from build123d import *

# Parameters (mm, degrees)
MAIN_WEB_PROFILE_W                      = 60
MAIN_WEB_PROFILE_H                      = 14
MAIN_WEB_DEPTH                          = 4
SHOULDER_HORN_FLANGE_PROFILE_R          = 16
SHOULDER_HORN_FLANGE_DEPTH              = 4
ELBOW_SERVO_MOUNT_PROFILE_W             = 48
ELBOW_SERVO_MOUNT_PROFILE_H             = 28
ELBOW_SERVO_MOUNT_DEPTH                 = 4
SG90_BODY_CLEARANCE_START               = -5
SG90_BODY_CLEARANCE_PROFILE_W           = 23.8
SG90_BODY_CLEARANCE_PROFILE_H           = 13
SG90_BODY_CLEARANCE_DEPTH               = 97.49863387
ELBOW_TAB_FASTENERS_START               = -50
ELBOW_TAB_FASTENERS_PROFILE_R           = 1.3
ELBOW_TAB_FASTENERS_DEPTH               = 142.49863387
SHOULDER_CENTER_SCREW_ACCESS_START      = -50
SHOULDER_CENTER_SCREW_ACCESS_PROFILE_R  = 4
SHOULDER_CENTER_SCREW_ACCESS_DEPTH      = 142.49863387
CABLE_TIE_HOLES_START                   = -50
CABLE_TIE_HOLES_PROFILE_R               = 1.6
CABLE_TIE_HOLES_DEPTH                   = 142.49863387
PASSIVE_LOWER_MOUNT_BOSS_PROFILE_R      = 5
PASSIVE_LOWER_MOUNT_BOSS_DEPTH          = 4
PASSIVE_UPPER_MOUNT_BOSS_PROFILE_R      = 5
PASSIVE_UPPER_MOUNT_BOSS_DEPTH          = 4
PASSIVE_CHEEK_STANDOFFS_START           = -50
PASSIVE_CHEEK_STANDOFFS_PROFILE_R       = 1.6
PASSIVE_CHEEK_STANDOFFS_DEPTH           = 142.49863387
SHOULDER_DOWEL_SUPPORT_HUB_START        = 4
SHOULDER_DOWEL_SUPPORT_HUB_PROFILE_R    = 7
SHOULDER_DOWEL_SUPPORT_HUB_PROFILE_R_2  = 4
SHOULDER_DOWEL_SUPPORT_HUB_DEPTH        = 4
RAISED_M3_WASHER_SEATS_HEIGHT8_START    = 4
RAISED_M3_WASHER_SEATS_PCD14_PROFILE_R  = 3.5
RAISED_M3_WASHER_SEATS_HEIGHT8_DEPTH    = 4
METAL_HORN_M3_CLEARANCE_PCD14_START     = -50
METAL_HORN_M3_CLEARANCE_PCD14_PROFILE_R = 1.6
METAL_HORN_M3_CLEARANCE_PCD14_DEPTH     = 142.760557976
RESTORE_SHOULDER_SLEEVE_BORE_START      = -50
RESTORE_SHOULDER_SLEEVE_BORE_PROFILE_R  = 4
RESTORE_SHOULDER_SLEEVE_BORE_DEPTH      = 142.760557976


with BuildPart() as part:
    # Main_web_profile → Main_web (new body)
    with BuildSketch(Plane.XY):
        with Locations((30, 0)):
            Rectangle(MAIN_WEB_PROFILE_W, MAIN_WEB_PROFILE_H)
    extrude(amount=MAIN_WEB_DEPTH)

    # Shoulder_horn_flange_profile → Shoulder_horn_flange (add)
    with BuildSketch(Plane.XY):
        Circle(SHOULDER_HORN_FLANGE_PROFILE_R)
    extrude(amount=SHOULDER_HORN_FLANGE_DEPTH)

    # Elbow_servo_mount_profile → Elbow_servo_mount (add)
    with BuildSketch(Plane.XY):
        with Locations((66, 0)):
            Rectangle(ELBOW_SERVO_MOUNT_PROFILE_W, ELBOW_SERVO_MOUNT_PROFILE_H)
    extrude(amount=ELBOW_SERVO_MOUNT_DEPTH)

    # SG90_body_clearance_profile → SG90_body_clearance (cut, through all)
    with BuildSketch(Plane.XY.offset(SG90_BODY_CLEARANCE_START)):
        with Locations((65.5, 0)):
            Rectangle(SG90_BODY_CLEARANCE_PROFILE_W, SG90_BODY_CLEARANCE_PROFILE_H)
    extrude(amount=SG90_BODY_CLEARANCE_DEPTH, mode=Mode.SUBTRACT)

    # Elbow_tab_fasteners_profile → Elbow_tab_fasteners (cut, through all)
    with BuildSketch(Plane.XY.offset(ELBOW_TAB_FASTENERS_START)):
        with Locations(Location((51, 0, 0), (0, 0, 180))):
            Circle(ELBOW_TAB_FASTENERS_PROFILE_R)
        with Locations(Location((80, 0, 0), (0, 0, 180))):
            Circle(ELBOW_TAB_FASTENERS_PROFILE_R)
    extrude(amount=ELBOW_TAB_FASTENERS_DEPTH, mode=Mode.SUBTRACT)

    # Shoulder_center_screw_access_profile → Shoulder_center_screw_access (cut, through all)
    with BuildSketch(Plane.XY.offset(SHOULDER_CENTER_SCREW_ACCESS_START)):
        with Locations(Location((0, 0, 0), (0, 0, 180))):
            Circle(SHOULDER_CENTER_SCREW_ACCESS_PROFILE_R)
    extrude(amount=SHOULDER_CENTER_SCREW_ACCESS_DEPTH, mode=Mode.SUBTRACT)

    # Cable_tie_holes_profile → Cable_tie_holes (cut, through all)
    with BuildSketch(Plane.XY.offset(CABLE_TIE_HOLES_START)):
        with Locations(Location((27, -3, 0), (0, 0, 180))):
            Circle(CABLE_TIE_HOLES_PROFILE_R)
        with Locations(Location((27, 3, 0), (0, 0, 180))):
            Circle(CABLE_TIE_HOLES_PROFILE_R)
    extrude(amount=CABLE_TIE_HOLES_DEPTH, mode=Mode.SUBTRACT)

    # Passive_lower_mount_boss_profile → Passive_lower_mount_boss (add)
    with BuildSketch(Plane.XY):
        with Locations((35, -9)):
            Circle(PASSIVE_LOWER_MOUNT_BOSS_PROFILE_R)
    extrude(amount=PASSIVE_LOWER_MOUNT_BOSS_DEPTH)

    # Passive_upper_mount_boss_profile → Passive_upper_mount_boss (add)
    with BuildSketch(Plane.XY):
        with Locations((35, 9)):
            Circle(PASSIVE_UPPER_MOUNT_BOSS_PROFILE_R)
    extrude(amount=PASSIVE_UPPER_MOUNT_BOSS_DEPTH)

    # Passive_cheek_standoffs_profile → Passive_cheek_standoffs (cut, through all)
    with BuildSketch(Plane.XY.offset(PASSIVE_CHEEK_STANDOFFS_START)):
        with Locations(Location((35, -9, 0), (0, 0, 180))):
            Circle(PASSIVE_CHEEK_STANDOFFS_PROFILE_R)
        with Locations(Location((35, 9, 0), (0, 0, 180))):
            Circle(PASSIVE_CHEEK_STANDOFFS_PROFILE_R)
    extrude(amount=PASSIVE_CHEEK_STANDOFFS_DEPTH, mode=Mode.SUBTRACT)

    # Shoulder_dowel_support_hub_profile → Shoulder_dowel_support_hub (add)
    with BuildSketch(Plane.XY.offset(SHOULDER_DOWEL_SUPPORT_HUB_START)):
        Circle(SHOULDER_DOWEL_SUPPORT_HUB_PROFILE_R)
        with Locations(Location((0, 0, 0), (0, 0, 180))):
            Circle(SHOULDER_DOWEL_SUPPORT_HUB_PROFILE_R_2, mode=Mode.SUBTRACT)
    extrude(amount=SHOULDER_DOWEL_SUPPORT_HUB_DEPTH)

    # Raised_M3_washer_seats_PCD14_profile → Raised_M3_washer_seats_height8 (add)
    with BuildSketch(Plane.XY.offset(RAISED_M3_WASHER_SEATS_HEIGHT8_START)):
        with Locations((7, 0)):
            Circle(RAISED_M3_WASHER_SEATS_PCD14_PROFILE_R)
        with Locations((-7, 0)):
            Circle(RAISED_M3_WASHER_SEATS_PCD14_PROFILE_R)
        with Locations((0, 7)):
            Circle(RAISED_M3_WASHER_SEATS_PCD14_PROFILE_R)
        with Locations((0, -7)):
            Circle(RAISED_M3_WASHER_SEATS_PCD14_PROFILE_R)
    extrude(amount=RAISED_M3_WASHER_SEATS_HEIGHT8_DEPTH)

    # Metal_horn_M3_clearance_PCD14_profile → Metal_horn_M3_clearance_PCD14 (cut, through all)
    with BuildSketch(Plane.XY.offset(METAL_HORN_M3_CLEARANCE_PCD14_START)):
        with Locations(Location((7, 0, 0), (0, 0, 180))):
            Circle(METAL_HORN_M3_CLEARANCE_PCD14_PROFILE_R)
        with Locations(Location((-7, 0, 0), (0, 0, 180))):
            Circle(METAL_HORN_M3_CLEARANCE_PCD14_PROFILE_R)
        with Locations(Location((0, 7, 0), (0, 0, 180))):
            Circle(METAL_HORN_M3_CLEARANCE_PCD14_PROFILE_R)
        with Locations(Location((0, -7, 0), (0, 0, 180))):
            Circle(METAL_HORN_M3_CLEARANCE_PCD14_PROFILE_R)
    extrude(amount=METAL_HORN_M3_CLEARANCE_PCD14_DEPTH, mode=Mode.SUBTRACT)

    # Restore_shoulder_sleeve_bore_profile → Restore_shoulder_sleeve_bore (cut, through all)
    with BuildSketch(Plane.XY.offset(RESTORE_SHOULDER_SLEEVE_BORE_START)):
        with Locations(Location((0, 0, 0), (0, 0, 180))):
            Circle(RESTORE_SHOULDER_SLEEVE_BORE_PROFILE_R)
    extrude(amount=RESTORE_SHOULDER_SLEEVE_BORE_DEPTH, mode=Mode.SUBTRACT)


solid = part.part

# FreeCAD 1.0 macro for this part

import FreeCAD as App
import Part
import Sketcher

V = App.Vector

doc = App.newDocument("Part")
body = doc.addObject("PartDesign::Body", "Body")

# Sketch on XY plane
sketch1 = body.newObject("Sketcher::SketchObject", "Sketch")
sketch1.AttachmentSupport = (doc.getObject("XY_Plane"), [""])
sketch1.MapMode = "FlatFace"
sketch1.addGeometry([
    Part.LineSegment(V(0, 7, 0), V(0, -7, 0)),
    Part.LineSegment(V(0, -7, 0), V(60, -7, 0)),
    Part.LineSegment(V(60, -7, 0), V(60, 7, 0)),
    Part.LineSegment(V(60, 7, 0), V(0, 7, 0)),
], False)
sketch1.addConstraint([
    Sketcher.Constraint("Coincident", 0, 2, 1, 1),
    Sketcher.Constraint("Coincident", 1, 2, 2, 1),
    Sketcher.Constraint("Coincident", 2, 2, 3, 1),
    Sketcher.Constraint("Coincident", 3, 2, 0, 1),
    Sketcher.Constraint("Vertical", 0),
    Sketcher.Constraint("Horizontal", 1),
    Sketcher.Constraint("Vertical", 2),
    Sketcher.Constraint("Horizontal", 3),
    Sketcher.Constraint("Symmetric", 0, 2, 3, 2, -1, 1),
    Sketcher.Constraint("DistanceX", 1, 1, 1, 2, 60.0),
    Sketcher.Constraint("DistanceY", 0, 2, 0, 1, 14.0),
])
pad1 = body.newObject("PartDesign::Pad", "Pad")
pad1.Profile = sketch1
pad1.Length = 4

# Sketch on XY plane
sketch2 = body.newObject("Sketcher::SketchObject", "Sketch001")
sketch2.AttachmentSupport = (doc.getObject("XY_Plane"), [""])
sketch2.MapMode = "FlatFace"
sketch2.addGeometry(Part.Circle(V(0, 0, 0), V(0, 0, 1), 16), False)
sketch2.addConstraint([
    Sketcher.Constraint("Coincident", 0, 3, -1, 1),
    Sketcher.Constraint("Diameter", 0, 32.0),
])
pad2 = body.newObject("PartDesign::Pad", "Pad001")
pad2.Profile = sketch2
pad2.Length = 4

# Sketch on XY plane
sketch3 = body.newObject("Sketcher::SketchObject", "Sketch002")
sketch3.AttachmentSupport = (doc.getObject("XY_Plane"), [""])
sketch3.MapMode = "FlatFace"
sketch3.addGeometry([
    Part.LineSegment(V(42, 14, 0), V(42, -14, 0)),
    Part.LineSegment(V(42, -14, 0), V(90, -14, 0)),
    Part.LineSegment(V(90, -14, 0), V(90, 14, 0)),
    Part.LineSegment(V(90, 14, 0), V(42, 14, 0)),
], False)
sketch3.addConstraint([
    Sketcher.Constraint("Coincident", 0, 2, 1, 1),
    Sketcher.Constraint("Coincident", 1, 2, 2, 1),
    Sketcher.Constraint("Coincident", 2, 2, 3, 1),
    Sketcher.Constraint("Coincident", 3, 2, 0, 1),
    Sketcher.Constraint("Vertical", 0),
    Sketcher.Constraint("Horizontal", 1),
    Sketcher.Constraint("Vertical", 2),
    Sketcher.Constraint("Horizontal", 3),
    Sketcher.Constraint("DistanceX", 1, 1, 1, 2, 48.0),
    Sketcher.Constraint("DistanceY", 0, 2, 0, 1, 28.0),
    Sketcher.Constraint("DistanceX", -1, 1, 0, 2, 42.0),
    Sketcher.Constraint("DistanceY", 0, 2, -1, 1, 14.0),
])
pad3 = body.newObject("PartDesign::Pad", "Pad002")
pad3.Profile = sketch3
pad3.Length = 4

# Sketch on XY plane
sketch4 = body.newObject("Sketcher::SketchObject", "Sketch003")
sketch4.AttachmentSupport = (doc.getObject("XY_Plane"), [""])
sketch4.MapMode = "FlatFace"
sketch4.AttachmentOffset = App.Placement(V(0, 0, -5), App.Rotation())
sketch4.addGeometry([
    Part.LineSegment(V(54, 6, 0), V(54, -6, 0)),
    Part.LineSegment(V(54, -6, 0), V(77, -6, 0)),
    Part.LineSegment(V(77, -6, 0), V(77, 6, 0)),
    Part.LineSegment(V(77, 6, 0), V(54, 6, 0)),
], False)
sketch4.addConstraint([
    Sketcher.Constraint("Coincident", 0, 2, 1, 1),
    Sketcher.Constraint("Coincident", 1, 2, 2, 1),
    Sketcher.Constraint("Coincident", 2, 2, 3, 1),
    Sketcher.Constraint("Coincident", 3, 2, 0, 1),
    Sketcher.Constraint("Vertical", 0),
    Sketcher.Constraint("Horizontal", 1),
    Sketcher.Constraint("Vertical", 2),
    Sketcher.Constraint("Horizontal", 3),
    Sketcher.Constraint("DistanceY", 0, 2, 0, 1, 13.0),
    Sketcher.Constraint("DistanceX", 1, 1, 1, 2, 23.8),
    Sketcher.Constraint("DistanceX", -1, 1, 0, 2, 53.6),
    Sketcher.Constraint("DistanceY", 0, 2, -1, 1, 6.5),
])
pocket1 = body.newObject("PartDesign::Pocket", "Pocket")
pocket1.Profile = sketch4
pocket1.Type = "ThroughAll"
pocket1.Reversed = True

# Sketch on XY plane
sketch5 = body.newObject("Sketcher::SketchObject", "Sketch004")
sketch5.AttachmentSupport = (doc.getObject("XY_Plane"), [""])
sketch5.MapMode = "FlatFace"
sketch5.AttachmentOffset = App.Placement(V(0, 0, -50), App.Rotation())
sketch5.addGeometry([
    Part.Circle(V(51, 0, 0), V(0, 0, 1), 1.3),
    Part.Circle(V(80, 0, 0), V(0, 0, 1), 1.3),
], False)
sketch5.addConstraint([
    Sketcher.Constraint("Equal", 0, 1),
    Sketcher.Constraint("PointOnObject", 0, 3, -1),
    Sketcher.Constraint("PointOnObject", 1, 3, -1),
    Sketcher.Constraint("Diameter", 0, 2.6),
    Sketcher.Constraint("DistanceX", -1, 1, 0, 3, 51.0),
    Sketcher.Constraint("DistanceX", -1, 1, 1, 3, 80.0),
])
pocket2 = body.newObject("PartDesign::Pocket", "Pocket001")
pocket2.Profile = sketch5
pocket2.Type = "ThroughAll"
pocket2.Reversed = True

# Sketch on XY plane
sketch6 = body.newObject("Sketcher::SketchObject", "Sketch005")
sketch6.AttachmentSupport = (doc.getObject("XY_Plane"), [""])
sketch6.MapMode = "FlatFace"
sketch6.AttachmentOffset = App.Placement(V(0, 0, -50), App.Rotation())
sketch6.addGeometry(Part.Circle(V(0, 0, 0), V(0, 0, 1), 4), False)
sketch6.addConstraint([
    Sketcher.Constraint("Coincident", 0, 3, -1, 1),
    Sketcher.Constraint("Diameter", 0, 8.0),
])
pocket3 = body.newObject("PartDesign::Pocket", "Pocket002")
pocket3.Profile = sketch6
pocket3.Type = "ThroughAll"
pocket3.Reversed = True

# Sketch on XY plane
sketch7 = body.newObject("Sketcher::SketchObject", "Sketch006")
sketch7.AttachmentSupport = (doc.getObject("XY_Plane"), [""])
sketch7.MapMode = "FlatFace"
sketch7.AttachmentOffset = App.Placement(V(0, 0, -50), App.Rotation())
sketch7.addGeometry([
    Part.Circle(V(27, -3, 0), V(0, 0, 1), 1.6),
    Part.Circle(V(27, 3, 0), V(0, 0, 1), 1.6),
], False)
sketch7.addConstraint([
    Sketcher.Constraint("Equal", 0, 1),
    Sketcher.Constraint("Symmetric", 0, 3, 1, 3, -1),
    Sketcher.Constraint("Diameter", 0, 3.2),
    Sketcher.Constraint("DistanceX", -1, 1, 0, 3, 27.0),
    Sketcher.Constraint("DistanceY", 0, 3, -1, 1, 3.0),
])
pocket4 = body.newObject("PartDesign::Pocket", "Pocket003")
pocket4.Profile = sketch7
pocket4.Type = "ThroughAll"
pocket4.Reversed = True

# Sketch on XY plane
sketch8 = body.newObject("Sketcher::SketchObject", "Sketch007")
sketch8.AttachmentSupport = (doc.getObject("XY_Plane"), [""])
sketch8.MapMode = "FlatFace"
sketch8.addGeometry(Part.Circle(V(35, -9, 0), V(0, 0, 1), 5), False)
sketch8.addConstraint([
    Sketcher.Constraint("Diameter", 0, 10.0),
    Sketcher.Constraint("DistanceX", -1, 1, 0, 3, 35.0),
    Sketcher.Constraint("DistanceY", 0, 3, -1, 1, 9.0),
])
pad4 = body.newObject("PartDesign::Pad", "Pad003")
pad4.Profile = sketch8
pad4.Length = 4

# Sketch on XY plane
sketch9 = body.newObject("Sketcher::SketchObject", "Sketch008")
sketch9.AttachmentSupport = (doc.getObject("XY_Plane"), [""])
sketch9.MapMode = "FlatFace"
sketch9.addGeometry(Part.Circle(V(35, 9, 0), V(0, 0, 1), 5), False)
sketch9.addConstraint([
    Sketcher.Constraint("Diameter", 0, 10.0),
    Sketcher.Constraint("DistanceX", -1, 1, 0, 3, 35.0),
    Sketcher.Constraint("DistanceY", -1, 1, 0, 3, 9.0),
])
pad5 = body.newObject("PartDesign::Pad", "Pad004")
pad5.Profile = sketch9
pad5.Length = 4

# Sketch on XY plane
sketch10 = body.newObject("Sketcher::SketchObject", "Sketch009")
sketch10.AttachmentSupport = (doc.getObject("XY_Plane"), [""])
sketch10.MapMode = "FlatFace"
sketch10.AttachmentOffset = App.Placement(V(0, 0, -50), App.Rotation())
sketch10.addGeometry([
    Part.Circle(V(35, -9, 0), V(0, 0, 1), 1.6),
    Part.Circle(V(35, 9, 0), V(0, 0, 1), 1.6),
], False)
sketch10.addConstraint([
    Sketcher.Constraint("Equal", 0, 1),
    Sketcher.Constraint("Symmetric", 0, 3, 1, 3, -1),
    Sketcher.Constraint("Diameter", 0, 3.2),
    Sketcher.Constraint("DistanceX", -1, 1, 0, 3, 35.0),
    Sketcher.Constraint("DistanceY", 0, 3, -1, 1, 9.0),
])
pocket5 = body.newObject("PartDesign::Pocket", "Pocket004")
pocket5.Profile = sketch10
pocket5.Type = "ThroughAll"
pocket5.Reversed = True

# Sketch on XY plane
sketch11 = body.newObject("Sketcher::SketchObject", "Sketch010")
sketch11.AttachmentSupport = (doc.getObject("XY_Plane"), [""])
sketch11.MapMode = "FlatFace"
sketch11.AttachmentOffset = App.Placement(V(0, 0, 4), App.Rotation())
sketch11.addGeometry([
    Part.Circle(V(0, 0, 0), V(0, 0, 1), 7),
    Part.Circle(V(0, 0, 0), V(0, 0, 1), 4),
], False)
sketch11.addConstraint([
    Sketcher.Constraint("Coincident", 0, 3, -1, 1),
    Sketcher.Constraint("Coincident", 1, 3, -1, 1),
    Sketcher.Constraint("Diameter", 0, 14.0),
    Sketcher.Constraint("Diameter", 1, 8.0),
])
pad6 = body.newObject("PartDesign::Pad", "Pad005")
pad6.Profile = sketch11
pad6.Length = 4

# Sketch on XY plane
sketch12 = body.newObject("Sketcher::SketchObject", "Sketch011")
sketch12.AttachmentSupport = (doc.getObject("XY_Plane"), [""])
sketch12.MapMode = "FlatFace"
sketch12.AttachmentOffset = App.Placement(V(0, 0, 4), App.Rotation())
sketch12.addGeometry([
    Part.Circle(V(7, 0, 0), V(0, 0, 1), 3.5),
    Part.Circle(V(-7, 0, 0), V(0, 0, 1), 3.5),
    Part.Circle(V(0, 7, 0), V(0, 0, 1), 3.5),
    Part.Circle(V(0, -7, 0), V(0, 0, 1), 3.5),
], False)
sketch12.addConstraint([
    Sketcher.Constraint("Equal", 0, 1),
    Sketcher.Constraint("Equal", 1, 2),
    Sketcher.Constraint("Equal", 2, 3),
    Sketcher.Constraint("Symmetric", 0, 3, 1, 3, -1, 1),
    Sketcher.Constraint("Symmetric", 2, 3, 3, 3, -1, 1),
    Sketcher.Constraint("PointOnObject", 0, 3, -1),
    Sketcher.Constraint("PointOnObject", 2, 3, -2),
    Sketcher.Constraint("Diameter", 0, 7.0),
    Sketcher.Constraint("DistanceX", -1, 1, 0, 3, 7.0),
    Sketcher.Constraint("DistanceY", -1, 1, 2, 3, 7.0),
])
pad7 = body.newObject("PartDesign::Pad", "Pad006")
pad7.Profile = sketch12
pad7.Length = 4

# Sketch on XY plane
sketch13 = body.newObject("Sketcher::SketchObject", "Sketch012")
sketch13.AttachmentSupport = (doc.getObject("XY_Plane"), [""])
sketch13.MapMode = "FlatFace"
sketch13.AttachmentOffset = App.Placement(V(0, 0, -50), App.Rotation())
sketch13.addGeometry([
    Part.Circle(V(7, 0, 0), V(0, 0, 1), 1.6),
    Part.Circle(V(-7, 0, 0), V(0, 0, 1), 1.6),
    Part.Circle(V(0, 7, 0), V(0, 0, 1), 1.6),
    Part.Circle(V(0, -7, 0), V(0, 0, 1), 1.6),
], False)
sketch13.addConstraint([
    Sketcher.Constraint("Equal", 0, 1),
    Sketcher.Constraint("Equal", 1, 2),
    Sketcher.Constraint("Equal", 2, 3),
    Sketcher.Constraint("Symmetric", 0, 3, 1, 3, -1, 1),
    Sketcher.Constraint("Symmetric", 2, 3, 3, 3, -1, 1),
    Sketcher.Constraint("PointOnObject", 0, 3, -1),
    Sketcher.Constraint("PointOnObject", 2, 3, -2),
    Sketcher.Constraint("Diameter", 0, 3.2),
    Sketcher.Constraint("DistanceX", -1, 1, 0, 3, 7.0),
    Sketcher.Constraint("DistanceY", -1, 1, 2, 3, 7.0),
])
pocket6 = body.newObject("PartDesign::Pocket", "Pocket005")
pocket6.Profile = sketch13
pocket6.Type = "ThroughAll"
pocket6.Reversed = True

# Sketch on XY plane
sketch14 = body.newObject("Sketcher::SketchObject", "Sketch013")
sketch14.AttachmentSupport = (doc.getObject("XY_Plane"), [""])
sketch14.MapMode = "FlatFace"
sketch14.AttachmentOffset = App.Placement(V(0, 0, -50), App.Rotation())
sketch14.addGeometry(Part.Circle(V(0, 0, 0), V(0, 0, 1), 4), False)
sketch14.addConstraint([
    Sketcher.Constraint("Coincident", 0, 3, -1, 1),
    Sketcher.Constraint("Diameter", 0, 8.0),
])
pocket7 = body.newObject("PartDesign::Pocket", "Pocket006")
pocket7.Profile = sketch14
pocket7.Type = "ThroughAll"
pocket7.Reversed = True

doc.recompute()
